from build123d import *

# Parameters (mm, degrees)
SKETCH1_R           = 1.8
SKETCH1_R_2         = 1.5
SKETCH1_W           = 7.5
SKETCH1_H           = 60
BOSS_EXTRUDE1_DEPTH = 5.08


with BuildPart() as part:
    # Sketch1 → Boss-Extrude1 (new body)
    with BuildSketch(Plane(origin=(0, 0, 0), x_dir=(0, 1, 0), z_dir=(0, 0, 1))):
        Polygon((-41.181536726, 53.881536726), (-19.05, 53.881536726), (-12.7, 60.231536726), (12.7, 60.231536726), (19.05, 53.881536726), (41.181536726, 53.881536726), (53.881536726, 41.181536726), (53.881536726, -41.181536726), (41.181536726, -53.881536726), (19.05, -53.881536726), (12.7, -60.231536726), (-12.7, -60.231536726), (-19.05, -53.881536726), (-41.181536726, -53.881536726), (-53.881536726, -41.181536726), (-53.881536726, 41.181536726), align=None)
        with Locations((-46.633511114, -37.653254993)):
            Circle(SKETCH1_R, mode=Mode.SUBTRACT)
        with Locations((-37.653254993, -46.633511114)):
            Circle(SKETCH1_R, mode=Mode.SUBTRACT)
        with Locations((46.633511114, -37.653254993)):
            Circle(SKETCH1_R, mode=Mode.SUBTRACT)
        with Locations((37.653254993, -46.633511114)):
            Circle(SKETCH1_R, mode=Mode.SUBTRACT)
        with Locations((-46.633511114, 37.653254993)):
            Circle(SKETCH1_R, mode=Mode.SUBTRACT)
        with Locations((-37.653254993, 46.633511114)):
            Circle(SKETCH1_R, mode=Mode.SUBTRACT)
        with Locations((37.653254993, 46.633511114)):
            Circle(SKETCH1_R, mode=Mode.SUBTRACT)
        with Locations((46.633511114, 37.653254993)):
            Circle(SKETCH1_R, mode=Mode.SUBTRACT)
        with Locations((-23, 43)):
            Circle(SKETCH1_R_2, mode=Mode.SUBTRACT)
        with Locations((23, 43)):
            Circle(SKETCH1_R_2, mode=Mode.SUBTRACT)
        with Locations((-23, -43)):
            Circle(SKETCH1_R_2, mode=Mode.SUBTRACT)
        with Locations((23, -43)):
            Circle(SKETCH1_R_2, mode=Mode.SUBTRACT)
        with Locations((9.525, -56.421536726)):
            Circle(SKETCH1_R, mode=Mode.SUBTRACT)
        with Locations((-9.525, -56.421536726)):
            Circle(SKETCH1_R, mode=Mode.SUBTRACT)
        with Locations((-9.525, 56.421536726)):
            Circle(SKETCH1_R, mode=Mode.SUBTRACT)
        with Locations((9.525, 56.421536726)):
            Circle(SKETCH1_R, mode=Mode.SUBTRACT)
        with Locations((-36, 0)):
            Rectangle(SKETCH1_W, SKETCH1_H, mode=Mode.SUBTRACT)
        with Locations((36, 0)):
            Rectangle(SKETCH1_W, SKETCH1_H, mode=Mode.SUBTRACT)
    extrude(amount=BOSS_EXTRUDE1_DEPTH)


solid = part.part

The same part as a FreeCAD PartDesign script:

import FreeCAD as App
import Part
import Sketcher

V = App.Vector
Q = App.Units.Quantity

doc = App.newDocument("Part")
params = doc.addObject("Spreadsheet::Sheet", "Params")
for row, (alias, value) in enumerate([
    ("sketch1_diameter", "3 mm"),
    ("sketch1_diameter2", "3.6 mm"),
    ("sketch1_width", "60 mm"),
    ("sketch1_height", "25.4 mm"),
    ("sketch1_height2", "7.5 mm"),
    ("pad1_length", "5.08 mm"),
], start=1):
    params.set(f"A{row}", alias)
    params.set(f"B{row}", "=" + value)
    params.setAlias(f"B{row}", alias)

body = doc.addObject("PartDesign::Body", "Body")

sketch1 = body.newObject("Sketcher::SketchObject", "Sketch")
sketch1.AttachmentSupport = (doc.getObject("XY_Plane"), [""])
sketch1.MapMode = "FlatFace"
sketch1.addGeometry(Part.LineSegment(V(-53.9, -19.1, 0), V(-53.9, -41.2, 0)), False)
sketch1.addGeometry(Part.LineSegment(V(-53.9, -41.2, 0), V(-41.2, -53.9, 0)), False)
sketch1.addGeometry(Part.LineSegment(V(-41.2, -53.9, 0), V(41.2, -53.9, 0)), False)
sketch1.addGeometry(Part.LineSegment(V(41.2, -53.9, 0), V(53.9, -41.2, 0)), False)
sketch1.addGeometry(Part.LineSegment(V(53.9, -41.2, 0), V(53.9, -19.1, 0)), False)
sketch1.addGeometry(Part.LineSegment(V(53.9, -19.1, 0), V(60.2, -12.7, 0)), False)
sketch1.addGeometry(Part.LineSegment(V(60.2, -12.7, 0), V(60.2, 12.7, 0)), False)
sketch1.addGeometry(Part.LineSegment(V(60.2, 12.7, 0), V(53.9, 19.1, 0)), False)
sketch1.addGeometry(Part.LineSegment(V(53.9, 19.1, 0), V(53.9, 41.2, 0)), False)
sketch1.addGeometry(Part.LineSegment(V(53.9, 41.2, 0), V(41.2, 53.9, 0)), False)
sketch1.addGeometry(Part.LineSegment(V(41.2, 53.9, 0), V(-41.2, 53.9, 0)), False)
sketch1.addGeometry(Part.LineSegment(V(-41.2, 53.9, 0), V(-53.9, 41.2, 0)), False)
sketch1.addGeometry(Part.LineSegment(V(-53.9, 41.2, 0), V(-53.9, 19.1, 0)), False)
sketch1.addGeometry(Part.LineSegment(V(-53.9, 19.1, 0), V(-60.2, 12.7, 0)), False)
sketch1.addGeometry(Part.LineSegment(V(-60.2, 12.7, 0), V(-60.2, -12.7, 0)), False)
sketch1.addGeometry(Part.LineSegment(V(-60.2, -12.7, 0), V(-53.9, -19.1, 0)), False)
sketch1.addGeometry(Part.Circle(V(46.6, 37.7, 0), V(0, 0, 1), 1.8), False)
sketch1.addGeometry(Part.Circle(V(37.7, 46.6, 0), V(0, 0, 1), 1.8), False)
sketch1.addGeometry(Part.Circle(V(56.4, 9.5, 0), V(0, 0, 1), 1.8), False)
sketch1.addGeometry(Part.Circle(V(43, 23, 0), V(0, 0, 1), 1.5), False)
sketch1.addGeometry(Part.LineSegment(V(30, 32.2, 0), V(-30, 32.2, 0)), False)
sketch1.addGeometry(Part.LineSegment(V(-30, 32.2, 0), V(-30, 39.8, 0)), False)
sketch1.addGeometry(Part.LineSegment(V(-30, 39.8, 0), V(30, 39.8, 0)), False)
sketch1.addGeometry(Part.LineSegment(V(30, 39.8, 0), V(30, 32.2, 0)), False)
sketch1.addGeometry(Part.Circle(V(56.4, -9.5, 0), V(0, 0, 1), 1.8), False)
sketch1.addGeometry(Part.Circle(V(43, -23, 0), V(0, 0, 1), 1.5), False)
sketch1.addGeometry(Part.Circle(V(46.6, -37.7, 0), V(0, 0, 1), 1.8), False)
sketch1.addGeometry(Part.Circle(V(37.7, -46.6, 0), V(0, 0, 1), 1.8), False)
sketch1.addGeometry(Part.LineSegment(V(30, -39.8, 0), V(-30, -39.8, 0)), False)
sketch1.addGeometry(Part.LineSegment(V(-30, -39.8, 0), V(-30, -32.2, 0)), False)
sketch1.addGeometry(Part.LineSegment(V(-30, -32.2, 0), V(30, -32.2, 0)), False)
sketch1.addGeometry(Part.LineSegment(V(30, -32.2, 0), V(30, -39.8, 0)), False)
sketch1.addGeometry(Part.Circle(V(-37.7, 46.6, 0), V(0, 0, 1), 1.8), False)
sketch1.addGeometry(Part.Circle(V(-46.6, 37.7, 0), V(0, 0, 1), 1.8), False)
sketch1.addGeometry(Part.Circle(V(-43, 23, 0), V(0, 0, 1), 1.5), False)
sketch1.addGeometry(Part.Circle(V(-56.4, 9.5, 0), V(0, 0, 1), 1.8), False)
sketch1.addGeometry(Part.Circle(V(-43, -23, 0), V(0, 0, 1), 1.5), False)
sketch1.addGeometry(Part.Circle(V(-56.4, -9.5, 0), V(0, 0, 1), 1.8), False)
sketch1.addGeometry(Part.Circle(V(-37.7, -46.6, 0), V(0, 0, 1), 1.8), False)
sketch1.addGeometry(Part.Circle(V(-46.6, -37.7, 0), V(0, 0, 1), 1.8), False)
sketch1.addConstraint(Sketcher.Constraint("Coincident", 0, 2, 1, 1))
sketch1.addConstraint(Sketcher.Constraint("Coincident", 1, 2, 2, 1))
sketch1.addConstraint(Sketcher.Constraint("Coincident", 2, 2, 3, 1))
sketch1.addConstraint(Sketcher.Constraint("Coincident", 3, 2, 4, 1))
sketch1.addConstraint(Sketcher.Constraint("Coincident", 4, 2, 5, 1))
sketch1.addConstraint(Sketcher.Constraint("Coincident", 5, 2, 6, 1))
sketch1.addConstraint(Sketcher.Constraint("Coincident", 6, 2, 7, 1))
sketch1.addConstraint(Sketcher.Constraint("Coincident", 7, 2, 8, 1))
sketch1.addConstraint(Sketcher.Constraint("Coincident", 8, 2, 9, 1))
sketch1.addConstraint(Sketcher.Constraint("Coincident", 9, 2, 10, 1))
sketch1.addConstraint(Sketcher.Constraint("Coincident", 10, 2, 11, 1))
sketch1.addConstraint(Sketcher.Constraint("Coincident", 11, 2, 12, 1))
sketch1.addConstraint(Sketcher.Constraint("Coincident", 12, 2, 13, 1))
sketch1.addConstraint(Sketcher.Constraint("Coincident", 13, 2, 14, 1))
sketch1.addConstraint(Sketcher.Constraint("Coincident", 14, 2, 15, 1))
sketch1.addConstraint(Sketcher.Constraint("Coincident", 15, 2, 0, 1))
sketch1.addConstraint(Sketcher.Constraint("Coincident", 20, 2, 21, 1))
sketch1.addConstraint(Sketcher.Constraint("Coincident", 21, 2, 22, 1))
sketch1.addConstraint(Sketcher.Constraint("Coincident", 22, 2, 23, 1))
sketch1.addConstraint(Sketcher.Constraint("Coincident", 23, 2, 20, 1))
sketch1.addConstraint(Sketcher.Constraint("Coincident", 28, 2, 29, 1))
sketch1.addConstraint(Sketcher.Constraint("Coincident", 29, 2, 30, 1))
sketch1.addConstraint(Sketcher.Constraint("Coincident", 30, 2, 31, 1))
sketch1.addConstraint(Sketcher.Constraint("Coincident", 31, 2, 28, 1))
sketch1.addConstraint(Sketcher.Constraint("Vertical", 0))
sketch1.addConstraint(Sketcher.Constraint("Horizontal", 2))
sketch1.addConstraint(Sketcher.Constraint("Vertical", 4))
sketch1.addConstraint(Sketcher.Constraint("Vertical", 6))
sketch1.addConstraint(Sketcher.Constraint("Vertical", 8))
sketch1.addConstraint(Sketcher.Constraint("Horizontal", 10))
sketch1.addConstraint(Sketcher.Constraint("Vertical", 12))
sketch1.addConstraint(Sketcher.Constraint("Vertical", 14))
sketch1.addConstraint(Sketcher.Constraint("Horizontal", 20))
sketch1.addConstraint(Sketcher.Constraint("Vertical", 21))
sketch1.addConstraint(Sketcher.Constraint("Horizontal", 22))
sketch1.addConstraint(Sketcher.Constraint("Vertical", 23))
sketch1.addConstraint(Sketcher.Constraint("Horizontal", 28))
sketch1.addConstraint(Sketcher.Constraint("Vertical", 29))
sketch1.addConstraint(Sketcher.Constraint("Horizontal", 30))
sketch1.addConstraint(Sketcher.Constraint("Vertical", 31))
sketch1.addConstraint(Sketcher.Constraint("Equal", 16, 17))
sketch1.addConstraint(Sketcher.Constraint("Equal", 17, 18))
sketch1.addConstraint(Sketcher.Constraint("Equal", 18, 24))
sketch1.addConstraint(Sketcher.Constraint("Equal", 19, 25))
sketch1.addConstraint(Sketcher.Constraint("Equal", 24, 26))
sketch1.addConstraint(Sketcher.Constraint("Equal", 26, 27))
sketch1.addConstraint(Sketcher.Constraint("Equal", 27, 32))
sketch1.addConstraint(Sketcher.Constraint("Equal", 32, 33))
sketch1.addConstraint(Sketcher.Constraint("Equal", 25, 34))
sketch1.addConstraint(Sketcher.Constraint("Equal", 33, 35))
sketch1.addConstraint(Sketcher.Constraint("Equal", 34, 36))
sketch1.addConstraint(Sketcher.Constraint("Equal", 35, 37))
sketch1.addConstraint(Sketcher.Constraint("Equal", 37, 38))
sketch1.addConstraint(Sketcher.Constraint("Equal", 38, 39))
sketch1.addConstraint(Sketcher.Constraint("Symmetric", 27, 3, 32, 3, -1, 1))
sketch1.addConstraint(Sketcher.Constraint("Symmetric", 26, 3, 33, 3, -1, 1))
sketch1.addConstraint(Sketcher.Constraint("Symmetric", 25, 3, 34, 3, -1, 1))
sketch1.addConstraint(Sketcher.Constraint("Symmetric", 24, 3, 35, 3, -1, 1))
sketch1.addConstraint(Sketcher.Constraint("Symmetric", 19, 3, 36, 3, -1, 1))
sketch1.addConstraint(Sketcher.Constraint("Symmetric", 18, 3, 37, 3, -1, 1))
sketch1.addConstraint(Sketcher.Constraint("Symmetric", 17, 3, 38, 3, -1, 1))
sketch1.addConstraint(Sketcher.Constraint("Symmetric", 16, 3, 39, 3, -1, 1))
sketch1.addConstraint(Sketcher.Constraint("Symmetric", 0, 2, 8, 2, -1, 1))
sketch1.addConstraint(Sketcher.Constraint("Symmetric", 1, 2, 9, 2, -1, 1))
sketch1.addConstraint(Sketcher.Constraint("Symmetric", 3, 2, 11, 2, -1, 1))
sketch1.addConstraint(Sketcher.Constraint("Symmetric", 5, 2, 13, 2, -1, 1))
sketch1.addConstraint(Sketcher.Constraint("Symmetric", 22, 2, 28, 2, -1, 1))
sketch1.addConstraint(Sketcher.Constraint("Symmetric", 20, 2, 30, 2, -1, 1))
sketch1.addConstraint(Sketcher.Constraint("Symmetric", 17, 3, 32, 3, -2))
sketch1.addConstraint(Sketcher.Constraint("Symmetric", 16, 3, 33, 3, -2))
sketch1.addConstraint(Sketcher.Constraint("Symmetric", 19, 3, 34, 3, -2))
sketch1.addConstraint(Sketcher.Constraint("Symmetric", 18, 3, 35, 3, -2))
sketch1.addConstraint(Sketcher.Constraint("Symmetric", 0, 2, 3, 2, -2))
sketch1.addConstraint(Sketcher.Constraint("Perpendicular", 1, 3))
sketch1.addConstraint(Sketcher.Constraint("Parallel", 3, 5))
sketch1.addConstraint(Sketcher.Constraint("Perpendicular", 5, 7))
sketch1.addConstraint(Sketcher.Constraint("Perpendicular", 9, 11))
sketch1.addConstraint(Sketcher.Constraint("Parallel", 11, 13))
sketch1.addConstraint(Sketcher.Constraint("Perpendicular", 13, 15))
sketch1.addConstraint(Sketcher.Constraint("Horizontal", 7, 2, 12, 2))
sketch1.addConstraint(Sketcher.Constraint("Horizontal", 6, 2, 13, 2))
sketch1.addConstraint(Sketcher.Constraint("Horizontal", 5, 2, 14, 2))
sketch1.addConstraint(Sketcher.Constraint("Vertical", 21, 2, 28, 2))
sketch1.addConstraint(Sketcher.Constraint("Diameter", 19, Q("3 mm")))
sketch1.addConstraint(Sketcher.Constraint("Diameter", 16, Q("3.6 mm")))
sketch1.addConstraint(Sketcher.Constraint("DistanceX", 20, 2, 20, 1, Q("60 mm")))
sketch1.addConstraint(Sketcher.Constraint("DistanceY", 6, 1, 6, 2, Q("25.4 mm")))
sketch1.addConstraint(Sketcher.Constraint("DistanceY", 21, 1, 21, 2, Q("7.5 mm")))
sketch1.addConstraint(Sketcher.Constraint("DistanceX", -1, 1, 19, 3, Q("43 mm")))
sketch1.addConstraint(Sketcher.Constraint("DistanceY", -1, 1, 19, 3, Q("23 mm")))
sketch1.addConstraint(Sketcher.Constraint("DistanceX", 0, 2, 1, 2, Q("12.7 mm")))
sketch1.addConstraint(Sketcher.Constraint("DistanceY", 4, 2, -1, 1, Q("19.05 mm")))
sketch1.addConstraint(Sketcher.Constraint("DistanceY", -1, 1, 20, 2, Q("32.25 mm")))
sketch1.addConstraint(Sketcher.Constraint("DistanceY", 24, 3, 18, 3, Q("19.05 mm")))
sketch1.addConstraint(Sketcher.Constraint("DistanceX", 37, 3, 0, 2, Q("2.54 mm")))
sketch1.addConstraint(Sketcher.Constraint("DistanceX", 2, 1, 2, 2, Q("82.363073 mm")))
sketch1.addConstraint(Sketcher.Constraint("DistanceY", 0, 2, 0, 1, Q("22.131537 mm")))
sketch1.addConstraint(Sketcher.Constraint("DistanceX", -1, 1, 16, 3, Q("46.633511 mm")))
sketch1.addConstraint(Sketcher.Constraint("DistanceY", -1, 1, 17, 3, Q("46.633511 mm")))
sketch1.addConstraint(Sketcher.Constraint("DistanceX", 17, 3, 18, 3, Q("18.768282 mm")))
sketch1.addConstraint(Sketcher.Constraint("DistanceY", 26, 3, 16, 3, Q("75.30651 mm")))
sketch1.setExpression("Constraints[83]", "Params.sketch1_diameter")
sketch1.setExpression("Constraints[84]", "Params.sketch1_diameter2")
sketch1.setExpression("Constraints[85]", "Params.sketch1_width")
sketch1.setExpression("Constraints[86]", "Params.sketch1_height")
sketch1.setExpression("Constraints[87]", "Params.sketch1_height2")
pad1 = body.newObject("PartDesign::Pad", "Pad")
pad1.Profile = sketch1
pad1.setExpression("Length", "Params.pad1_length")

doc.recompute()
